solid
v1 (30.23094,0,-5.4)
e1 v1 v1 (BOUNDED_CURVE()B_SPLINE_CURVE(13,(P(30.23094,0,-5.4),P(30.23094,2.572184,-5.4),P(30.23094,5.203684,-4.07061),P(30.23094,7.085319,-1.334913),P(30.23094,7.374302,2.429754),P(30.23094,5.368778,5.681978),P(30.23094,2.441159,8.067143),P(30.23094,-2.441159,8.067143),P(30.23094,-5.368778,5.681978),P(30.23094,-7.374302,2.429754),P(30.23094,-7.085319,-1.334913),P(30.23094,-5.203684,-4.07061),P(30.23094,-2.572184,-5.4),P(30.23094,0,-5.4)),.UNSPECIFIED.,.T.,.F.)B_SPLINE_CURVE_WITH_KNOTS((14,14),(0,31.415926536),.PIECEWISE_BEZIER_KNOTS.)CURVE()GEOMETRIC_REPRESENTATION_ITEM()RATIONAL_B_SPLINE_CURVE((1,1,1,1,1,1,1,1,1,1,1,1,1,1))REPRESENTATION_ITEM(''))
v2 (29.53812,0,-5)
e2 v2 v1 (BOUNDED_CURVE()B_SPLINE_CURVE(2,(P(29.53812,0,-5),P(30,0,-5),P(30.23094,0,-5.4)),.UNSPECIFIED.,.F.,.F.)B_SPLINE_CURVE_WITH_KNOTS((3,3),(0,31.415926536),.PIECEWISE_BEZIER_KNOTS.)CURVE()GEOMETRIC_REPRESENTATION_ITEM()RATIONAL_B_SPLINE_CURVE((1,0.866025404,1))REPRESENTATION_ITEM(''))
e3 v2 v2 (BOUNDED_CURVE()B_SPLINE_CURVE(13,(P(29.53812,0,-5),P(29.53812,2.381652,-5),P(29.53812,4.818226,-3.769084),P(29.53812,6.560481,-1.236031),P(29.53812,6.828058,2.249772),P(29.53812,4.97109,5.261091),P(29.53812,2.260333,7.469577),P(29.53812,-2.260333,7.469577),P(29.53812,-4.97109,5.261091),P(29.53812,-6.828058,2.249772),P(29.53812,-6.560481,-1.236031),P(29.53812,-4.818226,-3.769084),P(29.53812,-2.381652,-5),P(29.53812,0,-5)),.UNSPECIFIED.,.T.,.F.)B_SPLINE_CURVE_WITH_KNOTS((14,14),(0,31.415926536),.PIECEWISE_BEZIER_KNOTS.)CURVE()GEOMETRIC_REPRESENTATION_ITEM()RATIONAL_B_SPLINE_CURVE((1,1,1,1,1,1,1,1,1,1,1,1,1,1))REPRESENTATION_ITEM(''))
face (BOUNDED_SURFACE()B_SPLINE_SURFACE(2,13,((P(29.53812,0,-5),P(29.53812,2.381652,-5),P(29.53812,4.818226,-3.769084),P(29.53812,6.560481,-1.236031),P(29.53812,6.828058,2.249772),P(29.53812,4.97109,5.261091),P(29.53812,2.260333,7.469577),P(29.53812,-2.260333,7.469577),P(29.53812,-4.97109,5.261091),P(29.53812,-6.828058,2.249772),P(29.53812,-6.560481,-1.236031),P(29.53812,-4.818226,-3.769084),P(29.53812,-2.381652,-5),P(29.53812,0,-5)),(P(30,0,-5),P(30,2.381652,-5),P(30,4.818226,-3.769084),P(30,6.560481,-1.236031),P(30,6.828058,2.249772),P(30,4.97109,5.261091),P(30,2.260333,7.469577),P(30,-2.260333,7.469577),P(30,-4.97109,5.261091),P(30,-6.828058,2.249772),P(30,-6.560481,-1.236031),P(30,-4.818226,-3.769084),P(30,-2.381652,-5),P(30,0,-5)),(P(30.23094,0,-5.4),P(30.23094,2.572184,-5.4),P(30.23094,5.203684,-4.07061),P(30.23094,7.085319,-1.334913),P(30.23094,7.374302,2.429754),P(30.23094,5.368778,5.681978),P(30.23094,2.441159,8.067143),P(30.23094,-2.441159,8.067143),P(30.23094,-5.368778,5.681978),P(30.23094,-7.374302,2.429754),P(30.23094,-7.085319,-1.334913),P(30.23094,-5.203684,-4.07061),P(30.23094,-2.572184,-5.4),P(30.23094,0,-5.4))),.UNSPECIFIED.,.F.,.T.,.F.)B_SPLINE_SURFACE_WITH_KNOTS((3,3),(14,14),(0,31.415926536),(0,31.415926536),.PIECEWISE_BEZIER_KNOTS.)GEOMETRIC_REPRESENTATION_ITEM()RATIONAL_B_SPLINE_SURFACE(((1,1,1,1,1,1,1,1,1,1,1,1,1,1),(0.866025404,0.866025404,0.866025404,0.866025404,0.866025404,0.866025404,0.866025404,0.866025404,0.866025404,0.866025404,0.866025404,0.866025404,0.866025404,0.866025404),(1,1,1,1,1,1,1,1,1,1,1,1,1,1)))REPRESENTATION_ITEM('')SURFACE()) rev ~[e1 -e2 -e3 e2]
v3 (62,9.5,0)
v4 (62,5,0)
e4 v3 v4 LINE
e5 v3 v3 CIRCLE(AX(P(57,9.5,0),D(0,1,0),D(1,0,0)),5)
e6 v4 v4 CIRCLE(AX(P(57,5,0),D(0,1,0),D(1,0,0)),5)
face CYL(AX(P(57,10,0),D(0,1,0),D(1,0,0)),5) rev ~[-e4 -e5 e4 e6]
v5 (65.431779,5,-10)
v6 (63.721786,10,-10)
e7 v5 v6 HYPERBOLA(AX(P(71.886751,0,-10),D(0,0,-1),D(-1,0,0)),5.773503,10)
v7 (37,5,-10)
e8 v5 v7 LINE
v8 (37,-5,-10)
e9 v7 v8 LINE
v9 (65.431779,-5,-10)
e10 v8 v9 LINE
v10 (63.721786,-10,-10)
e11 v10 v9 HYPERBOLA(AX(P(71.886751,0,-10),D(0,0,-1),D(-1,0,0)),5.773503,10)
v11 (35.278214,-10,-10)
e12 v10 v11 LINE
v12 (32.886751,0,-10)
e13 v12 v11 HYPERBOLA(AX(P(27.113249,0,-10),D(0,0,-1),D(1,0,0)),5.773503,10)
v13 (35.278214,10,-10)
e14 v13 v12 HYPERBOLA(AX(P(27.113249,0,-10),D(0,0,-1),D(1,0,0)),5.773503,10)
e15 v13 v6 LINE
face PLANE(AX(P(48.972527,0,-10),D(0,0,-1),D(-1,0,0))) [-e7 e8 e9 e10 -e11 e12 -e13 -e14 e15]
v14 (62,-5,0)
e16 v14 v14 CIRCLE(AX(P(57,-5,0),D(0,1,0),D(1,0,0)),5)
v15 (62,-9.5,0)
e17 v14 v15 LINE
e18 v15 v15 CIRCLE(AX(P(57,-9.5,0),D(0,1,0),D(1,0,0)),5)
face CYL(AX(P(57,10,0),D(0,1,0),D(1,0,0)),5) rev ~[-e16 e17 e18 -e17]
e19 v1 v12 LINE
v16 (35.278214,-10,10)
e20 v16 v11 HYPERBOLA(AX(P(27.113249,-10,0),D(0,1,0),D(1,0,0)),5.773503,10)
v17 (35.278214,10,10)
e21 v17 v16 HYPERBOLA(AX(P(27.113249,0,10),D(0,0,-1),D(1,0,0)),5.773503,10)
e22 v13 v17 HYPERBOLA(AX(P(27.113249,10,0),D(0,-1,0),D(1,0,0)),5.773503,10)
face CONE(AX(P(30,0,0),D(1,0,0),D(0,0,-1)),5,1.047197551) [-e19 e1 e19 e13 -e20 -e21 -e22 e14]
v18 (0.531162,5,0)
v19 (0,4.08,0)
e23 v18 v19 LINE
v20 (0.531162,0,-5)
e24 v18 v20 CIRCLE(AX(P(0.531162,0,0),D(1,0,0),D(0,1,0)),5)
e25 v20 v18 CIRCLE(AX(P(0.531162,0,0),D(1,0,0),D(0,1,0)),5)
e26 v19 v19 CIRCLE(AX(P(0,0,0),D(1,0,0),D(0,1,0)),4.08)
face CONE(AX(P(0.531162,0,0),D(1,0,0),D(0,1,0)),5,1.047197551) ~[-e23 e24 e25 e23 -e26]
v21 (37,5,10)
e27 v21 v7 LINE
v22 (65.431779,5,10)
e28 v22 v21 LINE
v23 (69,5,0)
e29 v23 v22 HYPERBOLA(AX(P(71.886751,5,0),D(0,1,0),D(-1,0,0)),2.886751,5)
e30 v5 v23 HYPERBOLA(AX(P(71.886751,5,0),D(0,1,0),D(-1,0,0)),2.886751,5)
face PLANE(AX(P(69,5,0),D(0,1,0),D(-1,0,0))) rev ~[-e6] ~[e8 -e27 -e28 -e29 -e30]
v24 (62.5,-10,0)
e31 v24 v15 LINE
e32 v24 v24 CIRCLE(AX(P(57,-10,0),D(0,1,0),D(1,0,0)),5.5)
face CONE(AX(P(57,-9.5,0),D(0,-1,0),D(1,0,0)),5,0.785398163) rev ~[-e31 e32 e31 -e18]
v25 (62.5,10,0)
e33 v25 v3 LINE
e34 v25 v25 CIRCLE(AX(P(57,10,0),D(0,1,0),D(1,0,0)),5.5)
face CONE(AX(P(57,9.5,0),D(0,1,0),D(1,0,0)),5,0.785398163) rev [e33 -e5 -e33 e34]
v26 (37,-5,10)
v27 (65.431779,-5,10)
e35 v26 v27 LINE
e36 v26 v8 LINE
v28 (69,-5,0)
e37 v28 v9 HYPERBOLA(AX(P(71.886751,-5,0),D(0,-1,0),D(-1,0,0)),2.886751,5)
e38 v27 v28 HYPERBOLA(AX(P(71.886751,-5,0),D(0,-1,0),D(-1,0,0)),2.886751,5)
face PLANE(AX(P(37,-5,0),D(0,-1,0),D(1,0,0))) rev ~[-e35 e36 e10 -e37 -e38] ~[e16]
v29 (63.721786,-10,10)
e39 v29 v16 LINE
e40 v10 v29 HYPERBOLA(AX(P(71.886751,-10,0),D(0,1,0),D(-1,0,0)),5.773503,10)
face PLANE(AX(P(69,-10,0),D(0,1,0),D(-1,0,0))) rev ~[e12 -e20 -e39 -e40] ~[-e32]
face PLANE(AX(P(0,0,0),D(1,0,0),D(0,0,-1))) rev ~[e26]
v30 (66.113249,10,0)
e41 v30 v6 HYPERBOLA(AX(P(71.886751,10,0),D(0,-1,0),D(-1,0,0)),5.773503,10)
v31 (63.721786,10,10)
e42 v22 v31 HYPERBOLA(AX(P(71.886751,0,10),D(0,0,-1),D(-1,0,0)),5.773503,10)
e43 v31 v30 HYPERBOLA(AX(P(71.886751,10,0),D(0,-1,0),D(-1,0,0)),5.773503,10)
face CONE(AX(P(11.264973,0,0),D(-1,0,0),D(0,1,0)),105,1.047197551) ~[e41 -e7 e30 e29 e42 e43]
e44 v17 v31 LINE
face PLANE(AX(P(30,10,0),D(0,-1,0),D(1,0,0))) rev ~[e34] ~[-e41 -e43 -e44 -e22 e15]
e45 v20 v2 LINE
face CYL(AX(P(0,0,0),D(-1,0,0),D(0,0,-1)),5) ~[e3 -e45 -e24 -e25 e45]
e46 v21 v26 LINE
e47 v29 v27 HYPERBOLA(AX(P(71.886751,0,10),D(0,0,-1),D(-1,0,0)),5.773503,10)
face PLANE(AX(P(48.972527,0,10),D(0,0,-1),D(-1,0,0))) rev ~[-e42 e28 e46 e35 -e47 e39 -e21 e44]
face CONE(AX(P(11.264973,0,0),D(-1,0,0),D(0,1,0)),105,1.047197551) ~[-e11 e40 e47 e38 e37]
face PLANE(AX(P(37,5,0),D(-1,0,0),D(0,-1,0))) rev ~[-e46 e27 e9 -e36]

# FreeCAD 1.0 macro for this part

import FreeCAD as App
import Part
import Sketcher
from FreeCAD import Vector
Q = App.Units.Quantity


def edges_at(feature, points):
    """Names of the edges that pass closest to the given points."""
    edges = feature.Shape.Edges
    near = lambda p: min(range(len(edges)), key=lambda i: edges[i].distToShape(Part.Vertex(*p))[0])
    return sorted({f"Edge{near(p) + 1}" for p in points})


def add_polygon(sketch, points):
    """Adds a closed chain of lines whose ends are joined by coincident constraints."""
    first, n = sketch.GeometryCount, len(points)
    for a, b in zip(points, points[1:] + points[:1]):
        sketch.addGeometry(Part.LineSegment(App.Vector(*a, 0), App.Vector(*b, 0)), False)
    for i in range(n):
        sketch.addConstraint(Sketcher.Constraint("Coincident", first + i, 2, first + (i + 1) % n, 1))

doc = App.newDocument("Part")
body = doc.addObject("PartDesign::Body", "Body")

sketch1 = doc.addObject("Sketcher::SketchObject", "Sketch")
body.addObject(sketch1)
sketch1.AttachmentSupport = (doc.YZ_Plane, [""])
sketch1.MapMode = "FlatFace"
sketch1.addGeometry(Part.Circle(Vector(0, 0, 0), Vector(0, 0, 1), 5), False)
sketch1.addConstraint(Sketcher.Constraint("Coincident", 0, 3, -1, 1))
sketch1.addConstraint(Sketcher.Constraint("Diameter", 0, 10.0))
pad1 = doc.addObject("PartDesign::Pad", "Pad")
body.addObject(pad1)
pad1.Profile = sketch1
pad1.Length = 30

sketch2 = doc.addObject("Sketcher::SketchObject", "Sketch001")
body.addObject(sketch2)
sketch2.AttachmentSupport = (doc.XY_Plane, [""])
sketch2.MapMode = "FlatFace"
add_polygon(sketch2, [(30, 10), (30, -10), (69, -10), (69, -5), (37, -5), (37, 5), (69, 5), (69, 10)])
sketch2.addConstraint(Sketcher.Constraint("Vertical", 0))
sketch2.addConstraint(Sketcher.Constraint("Horizontal", 1))
sketch2.addConstraint(Sketcher.Constraint("Vertical", 2))
sketch2.addConstraint(Sketcher.Constraint("Horizontal", 3))
sketch2.addConstraint(Sketcher.Constraint("Vertical", 4))
sketch2.addConstraint(Sketcher.Constraint("Horizontal", 5))
sketch2.addConstraint(Sketcher.Constraint("Vertical", 6))
sketch2.addConstraint(Sketcher.Constraint("Horizontal", 7))
sketch2.addConstraint(Sketcher.Constraint("Symmetric", 2, 2, 5, 2, -1))
sketch2.addConstraint(Sketcher.Constraint("Equal", 2, 6))
sketch2.addConstraint(Sketcher.Constraint("DistanceX", 1, 1, 1, 2, 39.0))
sketch2.addConstraint(Sketcher.Constraint("DistanceX", 3, 2, 3, 1, 32.0))
sketch2.addConstraint(Sketcher.Constraint("DistanceY", 0, 2, 0, 1, 20.0))
sketch2.addConstraint(Sketcher.Constraint("DistanceY", 2, 1, 2, 2, 5.0))
sketch2.addConstraint(Sketcher.Constraint("DistanceX", -1, 1, 0, 2, 30.0))
pad2 = doc.addObject("PartDesign::Pad", "Pad001")
body.addObject(pad2)
pad2.Profile = sketch2
pad2.Length = 20
pad2.Midplane = True

sketch3 = doc.addObject("Sketcher::SketchObject", "Sketch002")
body.addObject(sketch3)
sketch3.AttachmentSupport = (doc.XZ_Plane, [""])
sketch3.MapMode = "FlatFace"
add_polygon(sketch3, [(30, -5), (56, -50), (30, -50)])
sketch3.addConstraint(Sketcher.Constraint("Horizontal", 1))
sketch3.addConstraint(Sketcher.Constraint("Vertical", 2))
sketch3.addConstraint(Sketcher.Constraint("DistanceY", 2, 1, 2, 2, 45.0))
sketch3.addConstraint(Sketcher.Constraint("Angle", 0, Q("-60 deg")))
sketch3.addConstraint(Sketcher.Constraint("DistanceY", 0, 2, -1, 1, 50.0))
sketch3.addConstraint(Sketcher.Constraint("DistanceX", -1, 1, 1, 2, 30.0))
groove = doc.addObject("PartDesign::Groove", "Groove")
body.addObject(groove)
groove.Profile = sketch3
groove.ReferenceAxis = (sketch3, ["H_Axis"])
groove.Angle = 360
doc.recompute()

fillet = doc.addObject("PartDesign::Fillet", "Fillet")
body.addObject(fillet)
fillet.Base = (groove, edges_at(groove, [(30, 0, 5)]))
fillet.Radius = 0.8

sketch4 = doc.addObject("Sketcher::SketchObject", "Sketch003")
body.addObject(sketch4)
sketch4.AttachmentSupport = (doc.XY_Plane, [""])
sketch4.MapMode = "FlatFace"
add_polygon(sketch4, [(11, 105), (69, 5), (69, 105)])
sketch4.addConstraint(Sketcher.Constraint("Vertical", 1))
sketch4.addConstraint(Sketcher.Constraint("Horizontal", 2))
sketch4.addConstraint(Sketcher.Constraint("DistanceY", 1, 1, 1, 2, 100.0))
sketch4.addConstraint(Sketcher.Constraint("Angle", 0, Q("-60 deg")))
sketch4.addConstraint(Sketcher.Constraint("DistanceX", -1, 1, 0, 2, 69.0))
sketch4.addConstraint(Sketcher.Constraint("DistanceY", -1, 1, 0, 2, 5.0))
groove2 = doc.addObject("PartDesign::Groove", "Groove001")
body.addObject(groove2)
groove2.Profile = sketch4
groove2.ReferenceAxis = (sketch4, ["H_Axis"])
groove2.Angle = 360

sketch5 = doc.addObject("Sketcher::SketchObject", "Sketch004")
body.addObject(sketch5)
sketch5.AttachmentSupport = (doc.XZ_Plane, [""])
sketch5.MapMode = "FlatFace"
sketch5.AttachmentOffset = App.Placement(Vector(0, 0, -10), App.Rotation())
sketch5.addGeometry(Part.Circle(Vector(57, 0, 0), Vector(0, 0, 1), 5), False)
sketch5.addConstraint(Sketcher.Constraint("PointOnObject", 0, 3, -1))
sketch5.addConstraint(Sketcher.Constraint("Diameter", 0, 10.0))
sketch5.addConstraint(Sketcher.Constraint("DistanceX", -1, 1, 0, 3, 57.0))
pocket1 = doc.addObject("PartDesign::Pocket", "Pocket")
body.addObject(pocket1)
pocket1.Profile = sketch5
pocket1.Type = "ThroughAll"
pocket1.Midplane = True
doc.recompute()

chamfer = doc.addObject("PartDesign::Chamfer", "Chamfer")
body.addObject(chamfer)
chamfer.Base = (pocket1, edges_at(pocket1, [(52, -10, 0), (52, 10, 0)]))
chamfer.Size = 0.5

sketch6 = doc.addObject("Sketcher::SketchObject", "Sketch005")
body.addObject(sketch6)
sketch6.AttachmentSupport = (doc.XY_Plane, [""])
sketch6.MapMode = "FlatFace"
add_polygon(sketch6, [(0, 5), (0, 4.1), (0.5, 5)])
sketch6.addConstraint(Sketcher.Constraint("Vertical", 0))
sketch6.addConstraint(Sketcher.Constraint("Horizontal", 2))
sketch6.addConstraint(Sketcher.Constraint("PointOnObject", 0, 2, -2))
sketch6.addConstraint(Sketcher.Constraint("Angle", 1, Q("60 deg")))
sketch6.addConstraint(Sketcher.Constraint("DistanceY", -1, 1, 1, 2, 5.0))
sketch6.addConstraint(Sketcher.Constraint("DistanceY", 0, 2, 0, 1, 0.92))
groove3 = doc.addObject("PartDesign::Groove", "Groove002")
body.addObject(groove3)
groove3.Profile = sketch6
groove3.ReferenceAxis = (sketch6, ["H_Axis"])
groove3.Angle = 360

doc.recompute()
